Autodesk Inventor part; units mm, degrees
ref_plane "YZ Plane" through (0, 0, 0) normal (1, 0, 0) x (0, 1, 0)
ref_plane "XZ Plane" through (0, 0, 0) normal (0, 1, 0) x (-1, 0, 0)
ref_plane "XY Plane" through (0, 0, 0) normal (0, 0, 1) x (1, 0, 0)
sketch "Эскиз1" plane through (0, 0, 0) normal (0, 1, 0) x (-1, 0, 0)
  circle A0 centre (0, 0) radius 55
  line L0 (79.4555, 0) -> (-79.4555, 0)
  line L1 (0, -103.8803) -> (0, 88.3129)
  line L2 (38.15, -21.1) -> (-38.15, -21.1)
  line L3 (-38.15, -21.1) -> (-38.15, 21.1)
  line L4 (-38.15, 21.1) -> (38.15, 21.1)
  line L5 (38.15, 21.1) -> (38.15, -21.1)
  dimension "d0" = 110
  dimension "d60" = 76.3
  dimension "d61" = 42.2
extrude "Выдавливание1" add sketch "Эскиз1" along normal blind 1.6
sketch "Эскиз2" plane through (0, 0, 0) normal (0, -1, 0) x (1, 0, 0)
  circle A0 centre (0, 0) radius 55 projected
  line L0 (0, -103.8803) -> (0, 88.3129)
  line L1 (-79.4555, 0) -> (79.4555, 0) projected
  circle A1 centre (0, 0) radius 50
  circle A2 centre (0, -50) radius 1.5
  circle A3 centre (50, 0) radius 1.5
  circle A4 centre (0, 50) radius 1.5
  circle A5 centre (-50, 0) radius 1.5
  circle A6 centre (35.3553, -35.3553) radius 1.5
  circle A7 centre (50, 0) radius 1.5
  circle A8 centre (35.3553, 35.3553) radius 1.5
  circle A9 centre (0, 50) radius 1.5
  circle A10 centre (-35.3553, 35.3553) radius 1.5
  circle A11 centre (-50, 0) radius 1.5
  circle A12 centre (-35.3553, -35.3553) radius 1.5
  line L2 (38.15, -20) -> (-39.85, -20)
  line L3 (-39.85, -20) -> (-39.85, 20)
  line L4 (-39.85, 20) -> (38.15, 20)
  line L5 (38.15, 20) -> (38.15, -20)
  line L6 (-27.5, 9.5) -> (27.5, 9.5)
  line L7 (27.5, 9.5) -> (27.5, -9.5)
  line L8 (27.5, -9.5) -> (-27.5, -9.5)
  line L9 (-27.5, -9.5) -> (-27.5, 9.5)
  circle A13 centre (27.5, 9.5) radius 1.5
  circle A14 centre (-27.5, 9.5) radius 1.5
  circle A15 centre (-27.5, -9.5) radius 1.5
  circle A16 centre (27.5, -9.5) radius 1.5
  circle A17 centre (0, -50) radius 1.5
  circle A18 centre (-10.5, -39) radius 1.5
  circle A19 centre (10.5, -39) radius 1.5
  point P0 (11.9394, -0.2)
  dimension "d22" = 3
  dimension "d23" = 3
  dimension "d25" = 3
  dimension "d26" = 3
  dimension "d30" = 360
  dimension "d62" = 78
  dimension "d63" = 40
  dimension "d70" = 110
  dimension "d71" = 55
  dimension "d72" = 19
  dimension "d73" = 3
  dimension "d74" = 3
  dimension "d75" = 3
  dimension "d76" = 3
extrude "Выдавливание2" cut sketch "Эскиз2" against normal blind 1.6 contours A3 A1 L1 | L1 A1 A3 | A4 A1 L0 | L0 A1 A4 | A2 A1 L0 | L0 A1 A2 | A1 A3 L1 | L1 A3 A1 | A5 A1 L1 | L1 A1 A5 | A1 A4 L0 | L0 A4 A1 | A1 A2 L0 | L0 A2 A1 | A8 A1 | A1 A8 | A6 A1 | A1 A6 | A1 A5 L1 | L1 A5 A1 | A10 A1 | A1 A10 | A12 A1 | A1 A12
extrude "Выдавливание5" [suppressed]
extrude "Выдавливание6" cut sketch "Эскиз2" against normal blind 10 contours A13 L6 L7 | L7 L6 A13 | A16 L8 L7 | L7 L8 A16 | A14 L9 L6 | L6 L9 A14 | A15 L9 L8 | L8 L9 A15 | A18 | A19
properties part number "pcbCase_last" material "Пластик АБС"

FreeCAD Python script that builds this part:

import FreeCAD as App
import Part
import Sketcher

V = App.Vector
Q = App.Units.Quantity

doc = App.newDocument("Part")
body = doc.addObject("PartDesign::Body", "Body")

sketch1 = doc.addObject("Sketcher::SketchObject", "Sketch")
body.addObject(sketch1)
sketch1.AttachmentSupport = (doc.XZ_Plane, [""])
sketch1.MapMode = "FlatFace"
sketch1.addGeometry(Part.Circle(V(0, 0, 0), V(0, 0, 1), 55), False)
sketch1.addConstraint(Sketcher.Constraint("Coincident", 0, 3, -1, 1))
sketch1.addConstraint(Sketcher.Constraint("Diameter", 0, Q("4.3307 in")))
pad1 = doc.addObject("PartDesign::Pad", "Pad")
body.addObject(pad1)
pad1.Profile = sketch1
pad1.Length = Q("0.0629921 in")
pad1.Reversed = True

sketch2 = doc.addObject("Sketcher::SketchObject", "Sketch001")
body.addObject(sketch2)
sketch2.AttachmentSupport = (doc.XZ_Plane, [""])
sketch2.MapMode = "FlatFace"
sketch2.addGeometry(Part.Circle(V(50, 0, 0), V(0, 0, 1), 1.5), False)
sketch2.addGeometry(Part.Circle(V(0, 50, 0), V(0, 0, 1), 1.5), False)
sketch2.addGeometry(Part.Circle(V(0, -50, 0), V(0, 0, 1), 1.5), False)
sketch2.addGeometry(Part.Circle(V(-50, 0, 0), V(0, 0, 1), 1.5), False)
sketch2.addGeometry(Part.Circle(V(35.4, 35.4, 0), V(0, 0, 1), 1.5), False)
sketch2.addGeometry(Part.Circle(V(35.4, -35.4, 0), V(0, 0, 1), 1.5), False)
sketch2.addGeometry(Part.Circle(V(-35.4, 35.4, 0), V(0, 0, 1), 1.5), False)
sketch2.addGeometry(Part.Circle(V(-35.4, -35.4, 0), V(0, 0, 1), 1.5), False)
sketch2.addConstraint(Sketcher.Constraint("Equal", 0, 1))
sketch2.addConstraint(Sketcher.Constraint("Equal", 1, 2))
sketch2.addConstraint(Sketcher.Constraint("Equal", 2, 3))
sketch2.addConstraint(Sketcher.Constraint("Equal", 3, 4))
sketch2.addConstraint(Sketcher.Constraint("Equal", 4, 5))
sketch2.addConstraint(Sketcher.Constraint("Equal", 5, 6))
sketch2.addConstraint(Sketcher.Constraint("Equal", 6, 7))
sketch2.addConstraint(Sketcher.Constraint("Symmetric", 1, 3, 2, 3, -1, 1))
sketch2.addConstraint(Sketcher.Constraint("Symmetric", 0, 3, 3, 3, -1, 1))
sketch2.addConstraint(Sketcher.Constraint("Symmetric", 5, 3, 6, 3, -1, 1))
sketch2.addConstraint(Sketcher.Constraint("Symmetric", 4, 3, 7, 3, -1, 1))
sketch2.addConstraint(Sketcher.Constraint("Symmetric", 4, 3, 6, 3, -2))
sketch2.addConstraint(Sketcher.Constraint("PointOnObject", 0, 3, -1))
sketch2.addConstraint(Sketcher.Constraint("PointOnObject", 1, 3, -2))
sketch2.addConstraint(Sketcher.Constraint("Diameter", 0, Q("0.1181 in")))
sketch2.addConstraint(Sketcher.Constraint("DistanceY", 2, 3, 1, 3, Q("3.937 in")))
sketch2.addConstraint(Sketcher.Constraint("DistanceX", 3, 3, 0, 3, Q("3.937 in")))
sketch2.addConstraint(Sketcher.Constraint("DistanceX", -1, 1, 4, 3, 35.3553))
sketch2.addConstraint(Sketcher.Constraint("DistanceY", -1, 1, 4, 3, 35.3553))
pocket1 = doc.addObject("PartDesign::Pocket", "Pocket")
body.addObject(pocket1)
pocket1.Profile = sketch2
pocket1.Length = Q("0.0629921 in")

sketch3 = doc.addObject("Sketcher::SketchObject", "Sketch002")
body.addObject(sketch3)
sketch3.AttachmentSupport = (doc.XZ_Plane, [""])
sketch3.MapMode = "FlatFace"
sketch3.addGeometry(Part.Circle(V(27.5, 9.5, 0), V(0, 0, 1), 1.5), False)
sketch3.addGeometry(Part.Circle(V(27.5, -9.5, 0), V(0, 0, 1), 1.5), False)
sketch3.addGeometry(Part.Circle(V(-27.5, 9.5, 0), V(0, 0, 1), 1.5), False)
sketch3.addGeometry(Part.Circle(V(-27.5, -9.5, 0), V(0, 0, 1), 1.5), False)
sketch3.addGeometry(Part.Circle(V(-10.5, -39, 0), V(0, 0, 1), 1.5), False)
sketch3.addGeometry(Part.Circle(V(10.5, -39, 0), V(0, 0, 1), 1.5), False)
sketch3.addConstraint(Sketcher.Constraint("Equal", 0, 1))
sketch3.addConstraint(Sketcher.Constraint("Equal", 1, 2))
sketch3.addConstraint(Sketcher.Constraint("Equal", 2, 3))
sketch3.addConstraint(Sketcher.Constraint("Equal", 3, 4))
sketch3.addConstraint(Sketcher.Constraint("Equal", 4, 5))
sketch3.addConstraint(Sketcher.Constraint("Symmetric", 1, 3, 2, 3, -1, 1))
sketch3.addConstraint(Sketcher.Constraint("Symmetric", 0, 3, 3, 3, -1, 1))
sketch3.addConstraint(Sketcher.Constraint("Symmetric", 0, 3, 2, 3, -2))
sketch3.addConstraint(Sketcher.Constraint("Symmetric", 4, 3, 5, 3, -2))
sketch3.addConstraint(Sketcher.Constraint("Diameter", 0, Q("0.1181 in")))
sketch3.addConstraint(Sketcher.Constraint("DistanceY", 1, 3, 0, 3, 19.0))
sketch3.addConstraint(Sketcher.Constraint("DistanceX", 2, 3, 0, 3, 55.0))
sketch3.addConstraint(Sketcher.Constraint("DistanceX", 3, 3, 4, 3, Q("0.6693 in")))
sketch3.addConstraint(Sketcher.Constraint("DistanceY", 4, 3, -1, 1, 39.0))
pocket2 = doc.addObject("PartDesign::Pocket", "Pocket001")
body.addObject(pocket2)
pocket2.Profile = sketch3
pocket2.Length = Q("0.3937008 in")

doc.recompute()
